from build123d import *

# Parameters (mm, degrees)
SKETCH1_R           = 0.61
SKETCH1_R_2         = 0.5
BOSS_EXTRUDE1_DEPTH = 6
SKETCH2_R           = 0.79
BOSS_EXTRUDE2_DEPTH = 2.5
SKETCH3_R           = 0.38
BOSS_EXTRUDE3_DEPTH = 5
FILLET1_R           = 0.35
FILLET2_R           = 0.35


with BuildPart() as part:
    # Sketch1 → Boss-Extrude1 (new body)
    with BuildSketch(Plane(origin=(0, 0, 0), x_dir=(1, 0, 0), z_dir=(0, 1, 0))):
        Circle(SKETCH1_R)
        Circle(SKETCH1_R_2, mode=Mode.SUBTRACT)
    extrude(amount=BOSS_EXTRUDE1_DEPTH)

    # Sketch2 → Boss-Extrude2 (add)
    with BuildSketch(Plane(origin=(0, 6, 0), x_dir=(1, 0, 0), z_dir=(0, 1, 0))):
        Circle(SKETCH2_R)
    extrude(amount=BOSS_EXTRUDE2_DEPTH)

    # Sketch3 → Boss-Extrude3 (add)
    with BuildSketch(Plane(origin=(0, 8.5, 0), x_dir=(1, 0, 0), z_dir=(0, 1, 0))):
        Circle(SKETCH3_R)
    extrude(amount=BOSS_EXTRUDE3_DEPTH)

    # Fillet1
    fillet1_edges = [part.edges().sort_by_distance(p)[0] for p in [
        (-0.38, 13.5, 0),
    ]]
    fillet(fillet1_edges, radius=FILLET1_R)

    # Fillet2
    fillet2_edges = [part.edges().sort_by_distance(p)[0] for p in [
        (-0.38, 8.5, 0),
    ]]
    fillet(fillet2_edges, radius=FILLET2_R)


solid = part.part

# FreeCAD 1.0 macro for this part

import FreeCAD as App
import Part
import Sketcher
from FreeCAD import Vector


def edges_at(feature, points):
    """Names of the edges that pass closest to the given points."""
    edges = feature.Shape.Edges
    near = lambda p: min(range(len(edges)), key=lambda i: edges[i].distToShape(Part.Vertex(*p))[0])
    return sorted({f"Edge{near(p) + 1}" for p in points})

doc = App.newDocument("Part")
body = doc.addObject("PartDesign::Body", "Body")

# Sketch on XZ plane
sketch1 = body.newObject("Sketcher::SketchObject", "Sketch")
sketch1.AttachmentSupport = (doc.getObject("XZ_Plane"), [""])
sketch1.MapMode = "FlatFace"
sketch1.addGeometry(Part.Circle(Vector(0, 0, 0), Vector(0, 0, 1), 0.6), False)
sketch1.addGeometry(Part.Circle(Vector(0, 0, 0), Vector(0, 0, 1), 0.5), False)
sketch1.addConstraint(Sketcher.Constraint("Coincident", 0, 3, -1, 1))
sketch1.addConstraint(Sketcher.Constraint("Coincident", 1, 3, -1, 1))
sketch1.addConstraint(Sketcher.Constraint("Diameter", 1, 1.0))
sketch1.addConstraint(Sketcher.Constraint("Diameter", 0, 1.22))
pad1 = body.newObject("PartDesign::Pad", "Pad")
pad1.Profile = sketch1
pad1.Length = 6
pad1.Reversed = True

# Sketch on XZ plane
sketch2 = body.newObject("Sketcher::SketchObject", "Sketch001")
sketch2.AttachmentSupport = (doc.getObject("XZ_Plane"), [""])
sketch2.MapMode = "FlatFace"
sketch2.AttachmentOffset = App.Placement(Vector(0, 0, -6), App.Rotation())
sketch2.addGeometry(Part.Circle(Vector(0, 0, 0), Vector(0, 0, 1), 0.8), False)
sketch2.addConstraint(Sketcher.Constraint("Coincident", 0, 3, -1, 1))
sketch2.addConstraint(Sketcher.Constraint("Diameter", 0, 1.58))
pad2 = body.newObject("PartDesign::Pad", "Pad001")
pad2.Profile = sketch2
pad2.Length = 2.5
pad2.Reversed = True

# Sketch on XZ plane
sketch3 = body.newObject("Sketcher::SketchObject", "Sketch002")
sketch3.AttachmentSupport = (doc.getObject("XZ_Plane"), [""])
sketch3.MapMode = "FlatFace"
sketch3.AttachmentOffset = App.Placement(Vector(0, 0, -8.5), App.Rotation())
sketch3.addGeometry(Part.Circle(Vector(0, 0, 0), Vector(0, 0, 1), 0.38), False)
sketch3.addConstraint(Sketcher.Constraint("Coincident", 0, 3, -1, 1))
sketch3.addConstraint(Sketcher.Constraint("Diameter", 0, 0.76))
pad3 = body.newObject("PartDesign::Pad", "Pad002")
pad3.Profile = sketch3
pad3.Length = 5
pad3.Reversed = True
doc.recompute()

fillet = body.newObject("PartDesign::Fillet", "Fillet")
fillet.Base = (pad3, edges_at(pad3, [(-0.38, 13.5, 0)]))
fillet.Radius = 0.35
doc.recompute()

fillet2 = body.newObject("PartDesign::Fillet", "Fillet001")
fillet2.Base = (fillet, edges_at(fillet, [(-0.38, 8.5, 0)]))
fillet2.Radius = 0.35

doc.recompute()
